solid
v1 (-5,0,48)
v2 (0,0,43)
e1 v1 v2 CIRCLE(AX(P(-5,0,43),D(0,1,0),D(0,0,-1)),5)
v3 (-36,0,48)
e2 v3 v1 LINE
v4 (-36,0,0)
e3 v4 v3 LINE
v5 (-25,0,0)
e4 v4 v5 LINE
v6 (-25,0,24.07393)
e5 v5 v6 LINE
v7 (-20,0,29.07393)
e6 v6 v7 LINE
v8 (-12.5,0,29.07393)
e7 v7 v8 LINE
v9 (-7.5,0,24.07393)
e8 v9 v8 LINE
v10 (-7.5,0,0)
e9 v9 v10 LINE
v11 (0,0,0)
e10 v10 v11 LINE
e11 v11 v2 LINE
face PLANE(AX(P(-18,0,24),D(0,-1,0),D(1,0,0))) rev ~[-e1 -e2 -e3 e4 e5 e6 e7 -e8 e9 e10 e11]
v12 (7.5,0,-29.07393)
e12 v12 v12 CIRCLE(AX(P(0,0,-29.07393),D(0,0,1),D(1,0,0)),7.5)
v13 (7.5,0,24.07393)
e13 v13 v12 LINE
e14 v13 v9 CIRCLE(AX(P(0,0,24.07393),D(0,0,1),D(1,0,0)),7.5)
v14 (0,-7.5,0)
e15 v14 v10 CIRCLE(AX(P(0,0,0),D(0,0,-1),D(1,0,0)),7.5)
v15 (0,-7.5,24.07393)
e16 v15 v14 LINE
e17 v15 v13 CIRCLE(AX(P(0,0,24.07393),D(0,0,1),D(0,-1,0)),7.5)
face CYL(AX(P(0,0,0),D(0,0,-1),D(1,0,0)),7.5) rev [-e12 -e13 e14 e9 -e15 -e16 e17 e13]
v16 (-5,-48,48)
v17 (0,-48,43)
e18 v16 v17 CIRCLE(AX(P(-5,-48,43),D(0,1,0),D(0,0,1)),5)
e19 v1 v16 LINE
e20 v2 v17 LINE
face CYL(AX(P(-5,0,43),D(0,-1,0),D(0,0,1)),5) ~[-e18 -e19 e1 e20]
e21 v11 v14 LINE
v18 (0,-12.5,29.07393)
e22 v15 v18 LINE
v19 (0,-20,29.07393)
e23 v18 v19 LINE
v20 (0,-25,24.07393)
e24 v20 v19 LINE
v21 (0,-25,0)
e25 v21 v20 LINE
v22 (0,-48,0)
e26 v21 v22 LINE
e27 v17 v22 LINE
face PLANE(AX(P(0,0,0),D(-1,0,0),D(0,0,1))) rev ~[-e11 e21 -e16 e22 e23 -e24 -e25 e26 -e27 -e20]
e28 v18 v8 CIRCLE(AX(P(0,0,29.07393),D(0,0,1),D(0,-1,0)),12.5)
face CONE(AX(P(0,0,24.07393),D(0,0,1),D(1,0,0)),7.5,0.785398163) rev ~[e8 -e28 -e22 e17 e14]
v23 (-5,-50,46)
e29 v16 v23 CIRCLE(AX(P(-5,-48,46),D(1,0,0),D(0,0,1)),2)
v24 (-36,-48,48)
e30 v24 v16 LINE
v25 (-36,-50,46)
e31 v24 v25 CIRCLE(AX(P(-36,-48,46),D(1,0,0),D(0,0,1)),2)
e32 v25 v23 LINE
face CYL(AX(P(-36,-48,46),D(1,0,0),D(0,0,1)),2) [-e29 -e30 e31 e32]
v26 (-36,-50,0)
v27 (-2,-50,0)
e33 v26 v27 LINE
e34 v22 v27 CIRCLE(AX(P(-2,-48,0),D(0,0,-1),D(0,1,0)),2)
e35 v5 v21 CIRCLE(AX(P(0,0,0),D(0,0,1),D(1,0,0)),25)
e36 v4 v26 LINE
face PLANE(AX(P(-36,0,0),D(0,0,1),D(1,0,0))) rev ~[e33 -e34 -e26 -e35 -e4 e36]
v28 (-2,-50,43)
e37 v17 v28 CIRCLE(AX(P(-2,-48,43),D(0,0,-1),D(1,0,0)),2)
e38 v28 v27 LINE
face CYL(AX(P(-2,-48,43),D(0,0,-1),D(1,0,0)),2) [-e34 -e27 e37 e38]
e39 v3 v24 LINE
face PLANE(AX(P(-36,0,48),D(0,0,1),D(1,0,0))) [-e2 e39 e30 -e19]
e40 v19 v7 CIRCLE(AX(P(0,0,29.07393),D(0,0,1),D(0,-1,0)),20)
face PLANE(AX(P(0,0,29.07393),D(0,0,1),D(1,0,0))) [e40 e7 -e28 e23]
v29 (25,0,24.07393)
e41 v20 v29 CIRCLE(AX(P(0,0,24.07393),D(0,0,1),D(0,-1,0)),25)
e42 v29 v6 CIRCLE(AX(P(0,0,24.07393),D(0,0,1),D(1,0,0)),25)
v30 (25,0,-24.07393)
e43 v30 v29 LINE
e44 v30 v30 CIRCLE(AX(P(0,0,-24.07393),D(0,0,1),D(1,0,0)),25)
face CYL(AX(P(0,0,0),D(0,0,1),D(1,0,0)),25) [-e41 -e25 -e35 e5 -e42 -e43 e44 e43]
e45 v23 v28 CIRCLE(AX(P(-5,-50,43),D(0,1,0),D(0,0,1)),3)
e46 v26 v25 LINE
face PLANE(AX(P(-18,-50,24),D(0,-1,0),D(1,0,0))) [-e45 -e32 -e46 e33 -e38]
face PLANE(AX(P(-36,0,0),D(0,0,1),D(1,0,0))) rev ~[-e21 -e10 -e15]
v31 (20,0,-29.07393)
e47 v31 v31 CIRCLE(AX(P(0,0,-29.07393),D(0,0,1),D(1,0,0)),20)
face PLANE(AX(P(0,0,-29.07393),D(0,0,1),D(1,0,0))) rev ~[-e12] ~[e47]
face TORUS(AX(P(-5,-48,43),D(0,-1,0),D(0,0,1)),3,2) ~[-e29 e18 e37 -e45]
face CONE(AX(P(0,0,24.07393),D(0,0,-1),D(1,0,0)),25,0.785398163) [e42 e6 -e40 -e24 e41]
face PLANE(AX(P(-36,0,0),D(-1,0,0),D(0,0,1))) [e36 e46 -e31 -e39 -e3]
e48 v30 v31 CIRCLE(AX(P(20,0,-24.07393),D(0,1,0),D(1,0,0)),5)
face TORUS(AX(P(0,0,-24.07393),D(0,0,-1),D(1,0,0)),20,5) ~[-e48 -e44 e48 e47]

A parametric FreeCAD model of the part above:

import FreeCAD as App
import Part
import Sketcher

V = App.Vector


def edges_at(feature, points):
    """Names of the edges that pass closest to the given points."""
    edges = feature.Shape.Edges
    near = lambda p: min(range(len(edges)), key=lambda i: edges[i].distToShape(Part.Vertex(*p))[0])
    return sorted({f"Edge{near(p) + 1}" for p in points})


def add_polygon(sketch, points):
    """Adds a closed chain of lines whose ends are joined by coincident constraints."""
    first, n = sketch.GeometryCount, len(points)
    for a, b in zip(points, points[1:] + points[:1]):
        sketch.addGeometry(Part.LineSegment(App.Vector(*a, 0), App.Vector(*b, 0)), False)
    for i in range(n):
        sketch.addConstraint(Sketcher.Constraint("Coincident", first + i, 2, first + (i + 1) % n, 1))

doc = App.newDocument("Part")
body = doc.addObject("PartDesign::Body", "Body")

# Sketch on XY plane
sketch1 = doc.addObject("Sketcher::SketchObject", "Sketch")
body.addObject(sketch1)
sketch1.AttachmentSupport = (doc.XY_Plane, [""])
sketch1.MapMode = "FlatFace"
sketch1.addGeometry([
    Part.Circle(V(0, 0, 0), V(0, 0, 1), 25),
    Part.Circle(V(0, 0, 0), V(0, 0, 1), 8),
], False)
sketch1.addConstraint([
    Sketcher.Constraint("Coincident", 0, 3, -1, 1),
    Sketcher.Constraint("Coincident", 1, 3, -1, 1),
    Sketcher.Constraint("Diameter", 0, 50.0),
    Sketcher.Constraint("Diameter", 1, 15.0),
])
pad1 = doc.addObject("PartDesign::Pad", "Pad")
body.addObject(pad1)
pad1.Profile = sketch1
pad1.Length = 58.14786
pad1.Midplane = True

# Sketch on XZ plane
sketch2 = doc.addObject("Sketcher::SketchObject", "Sketch001")
body.addObject(sketch2)
sketch2.AttachmentSupport = (doc.XZ_Plane, [""])
sketch2.MapMode = "FlatFace"
add_polygon(sketch2, [(-36, 48), (-36, 0), (0, 0), (0, 48)])  # lines 0-3
sketch2.addConstraint([
    Sketcher.Constraint("Vertical", 0),
    Sketcher.Constraint("Horizontal", 1),
    Sketcher.Constraint("Vertical", 2),
    Sketcher.Constraint("Horizontal", 3),
    Sketcher.Constraint("Coincident", 1, 2, -1, 1),
    Sketcher.Constraint("DistanceX", 1, 1, 1, 2, 36.0),
    Sketcher.Constraint("DistanceY", 0, 2, 0, 1, 48.0),
])
pad2 = doc.addObject("PartDesign::Pad", "Pad001")
body.addObject(pad2)
pad2.Profile = sketch2
pad2.Length = 50
doc.recompute()

chamfer = doc.addObject("PartDesign::Chamfer", "Chamfer")
body.addObject(chamfer)
chamfer.Base = (pad2, edges_at(pad2, [(0, 25, 29.074), (0, 7.5, 29.074)]))
chamfer.Size = 5
doc.recompute()

fillet = doc.addObject("PartDesign::Fillet", "Fillet")
body.addObject(fillet)
fillet.Base = (chamfer, edges_at(chamfer, [(0, -25, 48)]))
fillet.Radius = 5
doc.recompute()

fillet2 = doc.addObject("PartDesign::Fillet", "Fillet001")
body.addObject(fillet2)
fillet2.Base = (fillet, edges_at(fillet, [(-20.5, -50, 48)]))
fillet2.Radius = 2
doc.recompute()

fillet3 = doc.addObject("PartDesign::Fillet", "Fillet002")
body.addObject(fillet3)
fillet3.Base = (fillet2, edges_at(fillet2, [(-25, 0, -29.074)]))
fillet3.Radius = 5

doc.recompute()
